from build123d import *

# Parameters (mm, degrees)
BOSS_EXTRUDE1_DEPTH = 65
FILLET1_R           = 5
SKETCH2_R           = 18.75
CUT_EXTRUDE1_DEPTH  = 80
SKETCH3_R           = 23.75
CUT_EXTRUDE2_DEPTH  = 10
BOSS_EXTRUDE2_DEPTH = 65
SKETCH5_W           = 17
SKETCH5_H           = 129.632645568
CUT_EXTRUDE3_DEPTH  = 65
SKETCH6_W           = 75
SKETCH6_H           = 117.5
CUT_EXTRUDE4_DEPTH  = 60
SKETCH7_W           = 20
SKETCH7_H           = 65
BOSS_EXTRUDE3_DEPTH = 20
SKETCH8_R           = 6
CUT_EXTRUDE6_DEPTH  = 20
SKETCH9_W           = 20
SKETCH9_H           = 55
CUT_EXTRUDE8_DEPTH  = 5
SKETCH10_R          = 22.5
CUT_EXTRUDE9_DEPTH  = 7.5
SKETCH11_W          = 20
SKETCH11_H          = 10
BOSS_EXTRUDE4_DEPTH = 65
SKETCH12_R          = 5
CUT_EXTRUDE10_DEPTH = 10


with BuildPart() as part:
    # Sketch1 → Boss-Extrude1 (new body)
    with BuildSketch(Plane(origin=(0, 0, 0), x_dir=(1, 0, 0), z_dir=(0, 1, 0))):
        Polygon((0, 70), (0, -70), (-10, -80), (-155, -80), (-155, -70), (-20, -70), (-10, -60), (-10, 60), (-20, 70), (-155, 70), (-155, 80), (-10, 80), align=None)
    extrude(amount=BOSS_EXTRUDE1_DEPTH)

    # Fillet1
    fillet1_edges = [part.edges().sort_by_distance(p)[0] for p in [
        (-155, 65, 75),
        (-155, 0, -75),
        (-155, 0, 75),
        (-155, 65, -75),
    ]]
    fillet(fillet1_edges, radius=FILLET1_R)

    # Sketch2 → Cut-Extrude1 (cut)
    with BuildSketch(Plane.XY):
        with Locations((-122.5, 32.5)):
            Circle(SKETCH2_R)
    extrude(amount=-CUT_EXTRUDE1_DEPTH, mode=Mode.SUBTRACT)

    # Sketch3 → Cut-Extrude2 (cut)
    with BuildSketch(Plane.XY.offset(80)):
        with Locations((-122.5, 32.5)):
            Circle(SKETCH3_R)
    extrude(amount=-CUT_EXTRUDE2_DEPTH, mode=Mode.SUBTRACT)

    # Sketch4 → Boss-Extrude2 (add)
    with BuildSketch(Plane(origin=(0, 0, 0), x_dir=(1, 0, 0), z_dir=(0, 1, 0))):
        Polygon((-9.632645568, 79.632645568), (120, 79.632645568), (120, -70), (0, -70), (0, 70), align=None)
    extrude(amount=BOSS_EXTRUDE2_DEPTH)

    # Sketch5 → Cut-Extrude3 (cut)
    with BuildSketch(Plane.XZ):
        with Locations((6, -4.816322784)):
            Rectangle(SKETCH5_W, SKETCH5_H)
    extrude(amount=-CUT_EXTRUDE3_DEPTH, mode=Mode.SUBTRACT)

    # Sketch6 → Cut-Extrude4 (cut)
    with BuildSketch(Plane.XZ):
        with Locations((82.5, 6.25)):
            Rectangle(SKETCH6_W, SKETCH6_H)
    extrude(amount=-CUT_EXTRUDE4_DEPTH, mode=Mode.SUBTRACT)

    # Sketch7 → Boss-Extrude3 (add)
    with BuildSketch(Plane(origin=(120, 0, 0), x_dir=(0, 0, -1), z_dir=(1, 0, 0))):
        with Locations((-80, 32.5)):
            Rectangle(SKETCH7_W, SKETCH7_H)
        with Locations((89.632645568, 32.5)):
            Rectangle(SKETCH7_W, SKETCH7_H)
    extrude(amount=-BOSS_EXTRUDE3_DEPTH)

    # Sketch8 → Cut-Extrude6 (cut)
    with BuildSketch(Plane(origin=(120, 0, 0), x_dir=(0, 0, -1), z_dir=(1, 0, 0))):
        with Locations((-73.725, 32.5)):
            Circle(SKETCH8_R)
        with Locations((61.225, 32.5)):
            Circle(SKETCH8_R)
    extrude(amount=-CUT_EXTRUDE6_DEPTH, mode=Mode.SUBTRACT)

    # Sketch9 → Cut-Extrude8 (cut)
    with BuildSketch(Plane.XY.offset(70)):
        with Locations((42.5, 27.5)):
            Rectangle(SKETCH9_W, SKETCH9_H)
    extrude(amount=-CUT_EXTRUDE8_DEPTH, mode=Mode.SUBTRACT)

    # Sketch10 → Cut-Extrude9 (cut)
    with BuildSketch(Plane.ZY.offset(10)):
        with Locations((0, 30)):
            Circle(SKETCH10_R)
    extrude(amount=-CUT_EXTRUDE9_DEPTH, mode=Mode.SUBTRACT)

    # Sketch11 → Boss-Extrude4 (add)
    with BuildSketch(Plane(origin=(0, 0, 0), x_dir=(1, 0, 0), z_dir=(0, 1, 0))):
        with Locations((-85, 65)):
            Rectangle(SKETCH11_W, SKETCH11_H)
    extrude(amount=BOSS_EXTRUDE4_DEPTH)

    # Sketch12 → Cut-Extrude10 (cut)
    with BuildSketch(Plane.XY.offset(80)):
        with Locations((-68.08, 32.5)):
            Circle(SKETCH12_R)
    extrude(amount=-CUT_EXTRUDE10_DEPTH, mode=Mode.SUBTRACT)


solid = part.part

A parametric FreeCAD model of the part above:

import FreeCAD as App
import Part
import Sketcher

V = App.Vector
Q = App.Units.Quantity


def edges_at(feature, points):
    """Names of the edges that pass closest to the given points."""
    edges = feature.Shape.Edges
    near = lambda p: min(range(len(edges)), key=lambda i: edges[i].distToShape(Part.Vertex(*p))[0])
    return sorted({f"Edge{near(p) + 1}" for p in points})

doc = App.newDocument("Part")
body = doc.addObject("PartDesign::Body", "Body")

sketch1 = body.newObject("Sketcher::SketchObject", "Sketch")
sketch1.AttachmentSupport = (doc.getObject("XZ_Plane"), [""])
sketch1.MapMode = "FlatFace"
sketch1.addGeometry([
    Part.LineSegment(V(0, 70, 0), V(0, -70, 0)),
    Part.LineSegment(V(0, -70, 0), V(-10, -80, 0)),
    Part.LineSegment(V(-10, -80, 0), V(-155, -80, 0)),
    Part.LineSegment(V(-155, -80, 0), V(-155, -70, 0)),
    Part.LineSegment(V(-155, -70, 0), V(-20, -70, 0)),
    Part.LineSegment(V(-20, -70, 0), V(-10, -60, 0)),
    Part.LineSegment(V(-10, -60, 0), V(-10, 60, 0)),
    Part.LineSegment(V(-10, 60, 0), V(-20, 70, 0)),
    Part.LineSegment(V(-20, 70, 0), V(-155, 70, 0)),
    Part.LineSegment(V(-155, 70, 0), V(-155, 80, 0)),
    Part.LineSegment(V(-155, 80, 0), V(-10, 80, 0)),
    Part.LineSegment(V(-10, 80, 0), V(0, 70, 0)),
], False)
sketch1.addConstraint([
    Sketcher.Constraint("Coincident", 0, 2, 1, 1),
    Sketcher.Constraint("Coincident", 1, 2, 2, 1),
    Sketcher.Constraint("Coincident", 2, 2, 3, 1),
    Sketcher.Constraint("Coincident", 3, 2, 4, 1),
    Sketcher.Constraint("Coincident", 4, 2, 5, 1),
    Sketcher.Constraint("Coincident", 5, 2, 6, 1),
    Sketcher.Constraint("Coincident", 6, 2, 7, 1),
    Sketcher.Constraint("Coincident", 7, 2, 8, 1),
    Sketcher.Constraint("Coincident", 8, 2, 9, 1),
    Sketcher.Constraint("Coincident", 9, 2, 10, 1),
    Sketcher.Constraint("Coincident", 10, 2, 11, 1),
    Sketcher.Constraint("Coincident", 11, 2, 0, 1),
    Sketcher.Constraint("Vertical", 0),
    Sketcher.Constraint("Horizontal", 2),
    Sketcher.Constraint("Vertical", 3),
    Sketcher.Constraint("Horizontal", 4),
    Sketcher.Constraint("Vertical", 6),
    Sketcher.Constraint("Horizontal", 8),
    Sketcher.Constraint("Vertical", 9),
    Sketcher.Constraint("Horizontal", 10),
    Sketcher.Constraint("Symmetric", 0, 2, 11, 2, -1, 1),
    Sketcher.Constraint("Symmetric", 4, 2, 7, 2, -1),
    Sketcher.Constraint("Symmetric", 2, 2, 9, 2, -1),
    Sketcher.Constraint("Parallel", 1, 5),
    Sketcher.Constraint("Perpendicular", 5, 7),
    Sketcher.Constraint("Parallel", 7, 11),
    Sketcher.Constraint("Horizontal", 0, 2, 3, 2),
    Sketcher.Constraint("Vertical", 1, 2, 5, 2),
    Sketcher.Constraint("Vertical", 6, 2, 10, 2),
    Sketcher.Constraint("Equal", 1, 5),
    Sketcher.Constraint("DistanceX", 2, 2, 2, 1, 145.0),
    Sketcher.Constraint("DistanceX", 4, 1, 4, 2, 135.0),
    Sketcher.Constraint("DistanceY", 0, 2, 0, 1, 140.0),
])
pad1 = body.newObject("PartDesign::Pad", "Pad")
pad1.Profile = sketch1
pad1.Length = 65
pad1.Reversed = True
doc.recompute()

fillet = body.newObject("PartDesign::Fillet", "Fillet")
fillet.Base = (pad1, edges_at(pad1, [
    (-155, 65, 75),
    (-155, 0, -75),
    (-155, 0, 75),
    (-155, 65, -75),
]))
fillet.Radius = 5

sketch2 = body.newObject("Sketcher::SketchObject", "Sketch001")
sketch2.AttachmentSupport = (doc.getObject("XY_Plane"), [""])
sketch2.MapMode = "FlatFace"
sketch2.addGeometry(Part.Circle(V(-122.5, 32.5, 0), V(0, 0, 1), 18.75), False)
sketch2.addConstraint([
    Sketcher.Constraint("Diameter", 0, 37.5),
    Sketcher.Constraint("DistanceX", 0, 3, -1, 1, 122.5),
    Sketcher.Constraint("DistanceY", -1, 1, 0, 3, 32.5),
])
pocket1 = body.newObject("PartDesign::Pocket", "Pocket")
pocket1.Profile = sketch2
pocket1.Length = 80

sketch3 = body.newObject("Sketcher::SketchObject", "Sketch002")
sketch3.AttachmentSupport = (doc.getObject("XY_Plane"), [""])
sketch3.MapMode = "FlatFace"
sketch3.AttachmentOffset = App.Placement(V(0, 0, 80), App.Rotation())
sketch3.addGeometry(Part.Circle(V(-122.5, 32.5, 0), V(0, 0, 1), 23.75), False)
sketch3.addConstraint([
    Sketcher.Constraint("Diameter", 0, 47.5),
    Sketcher.Constraint("DistanceX", 0, 3, -1, 1, 122.5),
    Sketcher.Constraint("DistanceY", -1, 1, 0, 3, 32.5),
])
pocket2 = body.newObject("PartDesign::Pocket", "Pocket001")
pocket2.Profile = sketch3
pocket2.Length = 10

sketch4 = body.newObject("Sketcher::SketchObject", "Sketch003")
sketch4.AttachmentSupport = (doc.getObject("XZ_Plane"), [""])
sketch4.MapMode = "FlatFace"
sketch4.addGeometry([
    Part.LineSegment(V(120, -79.632646, 0), V(-9.632646, -79.632646, 0)),
    Part.LineSegment(V(-9.632646, -79.632646, 0), V(0, -70, 0)),
    Part.LineSegment(V(0, -70, 0), V(0, 70, 0)),
    Part.LineSegment(V(0, 70, 0), V(120, 70, 0)),
    Part.LineSegment(V(120, 70, 0), V(120, -79.632646, 0)),
], False)
sketch4.addConstraint([
    Sketcher.Constraint("Coincident", 0, 2, 1, 1),
    Sketcher.Constraint("Coincident", 1, 2, 2, 1),
    Sketcher.Constraint("Coincident", 2, 2, 3, 1),
    Sketcher.Constraint("Coincident", 3, 2, 4, 1),
    Sketcher.Constraint("Coincident", 4, 2, 0, 1),
    Sketcher.Constraint("Horizontal", 0),
    Sketcher.Constraint("Vertical", 2),
    Sketcher.Constraint("Horizontal", 3),
    Sketcher.Constraint("Vertical", 4),
    Sketcher.Constraint("Symmetric", 1, 2, 2, 2, -1, 1),
    Sketcher.Constraint("DistanceX", 3, 1, 3, 2, 120.0),
    Sketcher.Constraint("DistanceY", 2, 1, 2, 2, 140.0),
    Sketcher.Constraint("Angle", 1, Q("45 deg")),
    Sketcher.Constraint("Distance", 1, 13.622618),
])
pad2 = body.newObject("PartDesign::Pad", "Pad001")
pad2.Profile = sketch4
pad2.Length = 65
pad2.Reversed = True

sketch5 = body.newObject("Sketcher::SketchObject", "Sketch004")
sketch5.AttachmentSupport = (doc.getObject("XZ_Plane"), [""])
sketch5.MapMode = "FlatFace"
sketch5.addGeometry([
    Part.LineSegment(V(-2.5, 60, 0), V(-2.5, -69.632646, 0)),
    Part.LineSegment(V(-2.5, -69.632646, 0), V(14.5, -69.632646, 0)),
    Part.LineSegment(V(14.5, -69.632646, 0), V(14.5, 60, 0)),
    Part.LineSegment(V(14.5, 60, 0), V(-2.5, 60, 0)),
], False)
sketch5.addConstraint([
    Sketcher.Constraint("Coincident", 0, 2, 1, 1),
    Sketcher.Constraint("Coincident", 1, 2, 2, 1),
    Sketcher.Constraint("Coincident", 2, 2, 3, 1),
    Sketcher.Constraint("Coincident", 3, 2, 0, 1),
    Sketcher.Constraint("Vertical", 0),
    Sketcher.Constraint("Horizontal", 1),
    Sketcher.Constraint("Vertical", 2),
    Sketcher.Constraint("Horizontal", 3),
    Sketcher.Constraint("DistanceX", 1, 1, 1, 2, 17.0),
    Sketcher.Constraint("DistanceY", -1, 1, 2, 2, 60.0),
    Sketcher.Constraint("DistanceX", 0, 2, -1, 1, 2.5),
    Sketcher.Constraint("DistanceY", 0, 2, 0, 1, 129.632646),
])
pocket3 = body.newObject("PartDesign::Pocket", "Pocket002")
pocket3.Profile = sketch5
pocket3.Length = 65

sketch6 = body.newObject("Sketcher::SketchObject", "Sketch005")
sketch6.AttachmentSupport = (doc.getObject("XZ_Plane"), [""])
sketch6.MapMode = "FlatFace"
sketch6.addGeometry([
    Part.LineSegment(V(45, 65, 0), V(45, -52.5, 0)),
    Part.LineSegment(V(45, -52.5, 0), V(120, -52.5, 0)),
    Part.LineSegment(V(120, -52.5, 0), V(120, 65, 0)),
    Part.LineSegment(V(120, 65, 0), V(45, 65, 0)),
], False)
sketch6.addConstraint([
    Sketcher.Constraint("Coincident", 0, 2, 1, 1),
    Sketcher.Constraint("Coincident", 1, 2, 2, 1),
    Sketcher.Constraint("Coincident", 2, 2, 3, 1),
    Sketcher.Constraint("Coincident", 3, 2, 0, 1),
    Sketcher.Constraint("Vertical", 0),
    Sketcher.Constraint("Horizontal", 1),
    Sketcher.Constraint("Vertical", 2),
    Sketcher.Constraint("Horizontal", 3),
    Sketcher.Constraint("DistanceX", 1, 1, 1, 2, 75.0),
    Sketcher.Constraint("DistanceY", 0, 2, 0, 1, 117.5),
    Sketcher.Constraint("DistanceX", -1, 1, 0, 2, 45.0),
    Sketcher.Constraint("DistanceY", -1, 1, 2, 2, 65.0),
])
pocket4 = body.newObject("PartDesign::Pocket", "Pocket003")
pocket4.Profile = sketch6
pocket4.Length = 60

sketch7 = body.newObject("Sketcher::SketchObject", "Sketch006")
sketch7.AttachmentSupport = (doc.getObject("YZ_Plane"), [""])
sketch7.MapMode = "FlatFace"
sketch7.AttachmentOffset = App.Placement(V(0, 0, 120), App.Rotation())
sketch7.addGeometry([
    Part.LineSegment(V(65, 90, 0), V(0, 90, 0)),
    Part.LineSegment(V(0, 90, 0), V(0, 70, 0)),
    Part.LineSegment(V(0, 70, 0), V(65, 70, 0)),
    Part.LineSegment(V(65, 70, 0), V(65, 90, 0)),
    Part.LineSegment(V(65, -79.632646, 0), V(0, -79.632646, 0)),
    Part.LineSegment(V(0, -79.632646, 0), V(0, -99.632646, 0)),
    Part.LineSegment(V(0, -99.632646, 0), V(65, -99.632646, 0)),
    Part.LineSegment(V(65, -99.632646, 0), V(65, -79.632646, 0)),
], False)
sketch7.addConstraint([
    Sketcher.Constraint("Coincident", 0, 2, 1, 1),
    Sketcher.Constraint("Coincident", 1, 2, 2, 1),
    Sketcher.Constraint("Coincident", 2, 2, 3, 1),
    Sketcher.Constraint("Coincident", 3, 2, 0, 1),
    Sketcher.Constraint("Coincident", 4, 2, 5, 1),
    Sketcher.Constraint("Coincident", 5, 2, 6, 1),
    Sketcher.Constraint("Coincident", 6, 2, 7, 1),
    Sketcher.Constraint("Coincident", 7, 2, 4, 1),
    Sketcher.Constraint("Horizontal", 0),
    Sketcher.Constraint("Vertical", 1),
    Sketcher.Constraint("Horizontal", 2),
    Sketcher.Constraint("Vertical", 3),
    Sketcher.Constraint("Horizontal", 4),
    Sketcher.Constraint("Vertical", 5),
    Sketcher.Constraint("Horizontal", 6),
    Sketcher.Constraint("Vertical", 7),
    Sketcher.Constraint("PointOnObject", 0, 2, -2),
    Sketcher.Constraint("PointOnObject", 4, 2, -2),
    Sketcher.Constraint("Vertical", 3, 2, 6, 2),
    Sketcher.Constraint("Equal", 3, 5),
    Sketcher.Constraint("DistanceX", 0, 2, 0, 1, 65.0),
    Sketcher.Constraint("DistanceY", 1, 2, 1, 1, 20.0),
    Sketcher.Constraint("DistanceY", -1, 1, 0, 2, 90.0),
    Sketcher.Constraint("DistanceY", 4, 2, -1, 1, 79.632646),
])
pad3 = body.newObject("PartDesign::Pad", "Pad002")
pad3.Profile = sketch7
pad3.Length = 20
pad3.Reversed = True

sketch8 = body.newObject("Sketcher::SketchObject", "Sketch007")
sketch8.AttachmentSupport = (doc.getObject("YZ_Plane"), [""])
sketch8.MapMode = "FlatFace"
sketch8.AttachmentOffset = App.Placement(V(0, 0, 120), App.Rotation())
sketch8.addGeometry([
    Part.Circle(V(32.5, 73.725, 0), V(0, 0, 1), 6),
    Part.Circle(V(32.5, -61.225, 0), V(0, 0, 1), 6),
], False)
sketch8.addConstraint([
    Sketcher.Constraint("Equal", 0, 1),
    Sketcher.Constraint("Vertical", 0, 3, 1, 3),
    Sketcher.Constraint("Diameter", 0, 12.0),
    Sketcher.Constraint("DistanceX", -1, 1, 0, 3, 32.5),
    Sketcher.Constraint("DistanceY", 1, 3, 0, 3, 134.95),
    Sketcher.Constraint("DistanceY", -1, 1, 0, 3, 73.725),
])
pocket5 = body.newObject("PartDesign::Pocket", "Pocket004")
pocket5.Profile = sketch8
pocket5.Length = 20

sketch9 = body.newObject("Sketcher::SketchObject", "Sketch008")
sketch9.AttachmentSupport = (doc.getObject("XY_Plane"), [""])
sketch9.MapMode = "FlatFace"
sketch9.AttachmentOffset = App.Placement(V(0, 0, 70), App.Rotation())
sketch9.addGeometry([
    Part.LineSegment(V(32.5, 55, 0), V(32.5, 0, 0)),
    Part.LineSegment(V(32.5, 0, 0), V(52.5, 0, 0)),
    Part.LineSegment(V(52.5, 0, 0), V(52.5, 55, 0)),
    Part.LineSegment(V(52.5, 55, 0), V(32.5, 55, 0)),
], False)
sketch9.addConstraint([
    Sketcher.Constraint("Coincident", 0, 2, 1, 1),
    Sketcher.Constraint("Coincident", 1, 2, 2, 1),
    Sketcher.Constraint("Coincident", 2, 2, 3, 1),
    Sketcher.Constraint("Coincident", 3, 2, 0, 1),
    Sketcher.Constraint("Vertical", 0),
    Sketcher.Constraint("Horizontal", 1),
    Sketcher.Constraint("Vertical", 2),
    Sketcher.Constraint("Horizontal", 3),
    Sketcher.Constraint("PointOnObject", 0, 2, -1),
    Sketcher.Constraint("DistanceX", 1, 1, 1, 2, 20.0),
    Sketcher.Constraint("DistanceY", 0, 2, 0, 1, 55.0),
    Sketcher.Constraint("DistanceX", -1, 1, 0, 2, 32.5),
])
pocket6 = body.newObject("PartDesign::Pocket", "Pocket005")
pocket6.Profile = sketch9
pocket6.Length = 5

sketch10 = body.newObject("Sketcher::SketchObject", "Sketch009")
sketch10.AttachmentSupport = (doc.getObject("YZ_Plane"), [""])
sketch10.MapMode = "FlatFace"
sketch10.AttachmentOffset = App.Placement(V(0, 0, -10), App.Rotation())
sketch10.addGeometry(Part.Circle(V(30, 0, 0), V(0, 0, 1), 22.5), False)
sketch10.addConstraint([
    Sketcher.Constraint("PointOnObject", 0, 3, -1),
    Sketcher.Constraint("Diameter", 0, 45.0),
    Sketcher.Constraint("DistanceX", -1, 1, 0, 3, 30.0),
])
pocket7 = body.newObject("PartDesign::Pocket", "Pocket006")
pocket7.Profile = sketch10
pocket7.Length = 7.5
pocket7.Reversed = True

sketch11 = body.newObject("Sketcher::SketchObject", "Sketch010")
sketch11.AttachmentSupport = (doc.getObject("XZ_Plane"), [""])
sketch11.MapMode = "FlatFace"
sketch11.addGeometry([
    Part.LineSegment(V(-95, -70, 0), V(-95, -60, 0)),
    Part.LineSegment(V(-95, -60, 0), V(-75, -60, 0)),
    Part.LineSegment(V(-75, -60, 0), V(-75, -70, 0)),
    Part.LineSegment(V(-75, -70, 0), V(-95, -70, 0)),
], False)
sketch11.addConstraint([
    Sketcher.Constraint("Coincident", 0, 2, 1, 1),
    Sketcher.Constraint("Coincident", 1, 2, 2, 1),
    Sketcher.Constraint("Coincident", 2, 2, 3, 1),
    Sketcher.Constraint("Coincident", 3, 2, 0, 1),
    Sketcher.Constraint("Vertical", 0),
    Sketcher.Constraint("Horizontal", 1),
    Sketcher.Constraint("Vertical", 2),
    Sketcher.Constraint("Horizontal", 3),
    Sketcher.Constraint("DistanceX", 1, 1, 1, 2, 20.0),
    Sketcher.Constraint("DistanceY", 0, 1, 0, 2, 10.0),
    Sketcher.Constraint("DistanceX", 0, 2, -1, 1, 95.0),
    Sketcher.Constraint("DistanceY", 0, 2, -1, 1, 60.0),
])
pad4 = body.newObject("PartDesign::Pad", "Pad003")
pad4.Profile = sketch11
pad4.Length = 65
pad4.Reversed = True

sketch12 = body.newObject("Sketcher::SketchObject", "Sketch011")
sketch12.AttachmentSupport = (doc.getObject("XY_Plane"), [""])
sketch12.MapMode = "FlatFace"
sketch12.AttachmentOffset = App.Placement(V(0, 0, 80), App.Rotation())
sketch12.addGeometry(Part.Circle(V(-68.08, 32.5, 0), V(0, 0, 1), 5), False)
sketch12.addConstraint([
    Sketcher.Constraint("Diameter", 0, 10.0),
    Sketcher.Constraint("DistanceY", -1, 1, 0, 3, 32.5),
    Sketcher.Constraint("DistanceX", 0, 3, -1, 1, 68.08),
])
pocket8 = body.newObject("PartDesign::Pocket", "Pocket007")
pocket8.Profile = sketch12
pocket8.Length = 10

doc.recompute()
